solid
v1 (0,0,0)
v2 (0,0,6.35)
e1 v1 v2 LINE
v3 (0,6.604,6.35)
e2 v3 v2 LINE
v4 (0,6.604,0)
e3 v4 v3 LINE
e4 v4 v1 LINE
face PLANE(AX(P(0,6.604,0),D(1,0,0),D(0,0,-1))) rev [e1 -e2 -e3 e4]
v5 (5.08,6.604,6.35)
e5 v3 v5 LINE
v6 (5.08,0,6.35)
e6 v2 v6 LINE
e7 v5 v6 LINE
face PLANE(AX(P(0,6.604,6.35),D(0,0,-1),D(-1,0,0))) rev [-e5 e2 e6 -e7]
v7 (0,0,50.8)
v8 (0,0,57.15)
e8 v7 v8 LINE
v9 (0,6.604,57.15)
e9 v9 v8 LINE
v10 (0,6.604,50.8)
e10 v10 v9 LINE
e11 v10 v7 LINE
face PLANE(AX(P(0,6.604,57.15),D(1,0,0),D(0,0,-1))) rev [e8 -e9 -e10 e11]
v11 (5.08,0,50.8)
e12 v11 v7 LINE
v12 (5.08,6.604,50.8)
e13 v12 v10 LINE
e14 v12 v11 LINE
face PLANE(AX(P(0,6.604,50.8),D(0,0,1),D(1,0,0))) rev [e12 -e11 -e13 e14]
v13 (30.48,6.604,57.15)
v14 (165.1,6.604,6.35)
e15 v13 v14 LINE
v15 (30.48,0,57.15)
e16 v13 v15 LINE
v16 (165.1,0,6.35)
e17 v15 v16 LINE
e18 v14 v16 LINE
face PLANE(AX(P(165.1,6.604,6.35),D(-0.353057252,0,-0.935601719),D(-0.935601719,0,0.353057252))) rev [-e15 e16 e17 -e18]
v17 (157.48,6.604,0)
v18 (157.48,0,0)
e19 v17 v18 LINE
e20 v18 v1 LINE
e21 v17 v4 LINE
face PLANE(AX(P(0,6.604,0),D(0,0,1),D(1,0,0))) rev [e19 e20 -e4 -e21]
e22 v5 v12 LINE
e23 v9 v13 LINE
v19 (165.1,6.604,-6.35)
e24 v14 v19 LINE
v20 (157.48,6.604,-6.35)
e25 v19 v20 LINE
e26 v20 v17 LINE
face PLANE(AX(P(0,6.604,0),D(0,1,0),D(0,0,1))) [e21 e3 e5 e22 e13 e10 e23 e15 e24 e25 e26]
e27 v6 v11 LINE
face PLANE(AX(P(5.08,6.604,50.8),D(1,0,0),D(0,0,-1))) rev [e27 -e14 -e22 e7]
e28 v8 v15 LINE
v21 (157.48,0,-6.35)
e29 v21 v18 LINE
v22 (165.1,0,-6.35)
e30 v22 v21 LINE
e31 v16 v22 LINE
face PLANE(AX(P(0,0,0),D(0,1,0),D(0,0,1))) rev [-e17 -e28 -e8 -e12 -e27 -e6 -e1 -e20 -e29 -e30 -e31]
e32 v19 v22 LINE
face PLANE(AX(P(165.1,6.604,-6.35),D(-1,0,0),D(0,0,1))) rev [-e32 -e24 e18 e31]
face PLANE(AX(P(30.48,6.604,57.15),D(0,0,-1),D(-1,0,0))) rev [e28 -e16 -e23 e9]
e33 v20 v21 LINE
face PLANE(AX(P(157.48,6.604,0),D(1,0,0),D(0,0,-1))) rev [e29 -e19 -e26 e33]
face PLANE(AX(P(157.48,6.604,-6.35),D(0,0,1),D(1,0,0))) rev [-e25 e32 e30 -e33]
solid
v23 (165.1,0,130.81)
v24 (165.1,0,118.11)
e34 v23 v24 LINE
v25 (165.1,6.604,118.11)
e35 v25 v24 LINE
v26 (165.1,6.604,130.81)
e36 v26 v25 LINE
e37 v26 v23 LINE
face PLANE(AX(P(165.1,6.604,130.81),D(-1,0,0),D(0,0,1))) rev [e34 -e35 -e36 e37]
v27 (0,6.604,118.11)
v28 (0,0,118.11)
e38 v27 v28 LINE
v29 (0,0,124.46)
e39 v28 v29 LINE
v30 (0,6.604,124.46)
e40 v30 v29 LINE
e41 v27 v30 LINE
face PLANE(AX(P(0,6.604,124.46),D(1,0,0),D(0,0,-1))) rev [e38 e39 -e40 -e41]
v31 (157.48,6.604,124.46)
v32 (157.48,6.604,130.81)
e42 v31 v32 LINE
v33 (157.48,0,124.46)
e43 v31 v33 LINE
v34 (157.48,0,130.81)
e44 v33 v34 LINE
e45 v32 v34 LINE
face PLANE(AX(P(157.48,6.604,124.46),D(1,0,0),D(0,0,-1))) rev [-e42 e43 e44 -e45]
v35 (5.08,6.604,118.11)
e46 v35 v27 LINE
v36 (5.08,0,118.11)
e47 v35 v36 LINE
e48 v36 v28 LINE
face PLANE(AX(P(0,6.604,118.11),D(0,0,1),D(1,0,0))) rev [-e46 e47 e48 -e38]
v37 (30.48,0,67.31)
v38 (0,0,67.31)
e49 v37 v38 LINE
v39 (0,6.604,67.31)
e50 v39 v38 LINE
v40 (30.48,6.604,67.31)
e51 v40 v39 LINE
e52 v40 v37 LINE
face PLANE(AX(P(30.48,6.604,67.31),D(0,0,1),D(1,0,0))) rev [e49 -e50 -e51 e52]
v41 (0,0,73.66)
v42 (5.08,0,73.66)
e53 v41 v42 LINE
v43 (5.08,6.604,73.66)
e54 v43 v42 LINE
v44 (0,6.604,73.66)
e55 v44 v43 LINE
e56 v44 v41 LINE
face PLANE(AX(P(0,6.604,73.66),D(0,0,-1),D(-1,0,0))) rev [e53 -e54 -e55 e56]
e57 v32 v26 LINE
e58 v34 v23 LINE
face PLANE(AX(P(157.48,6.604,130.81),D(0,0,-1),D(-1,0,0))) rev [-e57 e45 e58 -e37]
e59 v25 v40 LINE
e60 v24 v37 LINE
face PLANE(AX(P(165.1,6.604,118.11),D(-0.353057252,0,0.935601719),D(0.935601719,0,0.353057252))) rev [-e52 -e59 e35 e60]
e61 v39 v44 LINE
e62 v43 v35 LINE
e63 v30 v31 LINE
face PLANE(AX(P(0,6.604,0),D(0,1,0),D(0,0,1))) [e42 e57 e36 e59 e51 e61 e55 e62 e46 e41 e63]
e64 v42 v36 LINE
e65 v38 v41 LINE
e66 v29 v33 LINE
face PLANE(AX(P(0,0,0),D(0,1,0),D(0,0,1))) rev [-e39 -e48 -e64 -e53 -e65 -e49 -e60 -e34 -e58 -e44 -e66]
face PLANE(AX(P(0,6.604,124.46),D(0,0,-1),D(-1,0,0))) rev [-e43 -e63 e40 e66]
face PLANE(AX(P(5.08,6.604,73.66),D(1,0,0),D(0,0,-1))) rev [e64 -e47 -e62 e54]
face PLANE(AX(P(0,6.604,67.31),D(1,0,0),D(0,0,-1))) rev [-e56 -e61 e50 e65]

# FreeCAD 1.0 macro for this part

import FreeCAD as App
import Part
import Sketcher
from FreeCAD import Vector
Q = App.Units.Quantity


def add_polygon(sketch, points):
    """Adds a closed chain of lines whose ends are joined by coincident constraints."""
    first, n = sketch.GeometryCount, len(points)
    for a, b in zip(points, points[1:] + points[:1]):
        sketch.addGeometry(Part.LineSegment(App.Vector(*a, 0), App.Vector(*b, 0)), False)
    for i in range(n):
        sketch.addConstraint(Sketcher.Constraint("Coincident", first + i, 2, first + (i + 1) % n, 1))

doc = App.newDocument("Part")
params = doc.addObject("Spreadsheet::Sheet", "Params")
for row, (alias, value) in enumerate([
    ("sketch1_width", "6.2 in"),
    ("sketch1_width2", "0.2 in"),
    ("sketch1_width3", "1.2 in"),
    ("sketch1_width4", "0.3 in"),
    ("sketch1_height", "0.5 in"),
    ("pad1_length", "0.26 in"),
    ("sketch2_width", "0.2 in"),
    ("sketch2_width2", "6.2 in"),
    ("sketch2_width3", "0.3 in"),
    ("sketch2_width4", "1.2 in"),
    ("sketch2_height", "0.5 in"),
    ("pad2_length", "0.26 in"),
], start=1):
    params.set(f"A{row}", alias)
    params.set(f"B{row}", "=" + value)
    params.setAlias(f"B{row}", alias)

body = doc.addObject("PartDesign::Body", "Body")

sketch1 = doc.addObject("Sketcher::SketchObject", "Sketch")
body.addObject(sketch1)
sketch1.AttachmentSupport = (doc.XZ_Plane, [""])
sketch1.MapMode = "FlatFace"
add_polygon(sketch1, [(157, -6), (157, 0), (0, 0), (0, 6), (5, 6), (5, 51), (0, 51), (0, 57), (30, 57), (165, 6), (165, -6)])
sketch1.addConstraint(Sketcher.Constraint("Vertical", 0))
sketch1.addConstraint(Sketcher.Constraint("Horizontal", 1))
sketch1.addConstraint(Sketcher.Constraint("Vertical", 2))
sketch1.addConstraint(Sketcher.Constraint("Horizontal", 3))
sketch1.addConstraint(Sketcher.Constraint("Vertical", 4))
sketch1.addConstraint(Sketcher.Constraint("Horizontal", 5))
sketch1.addConstraint(Sketcher.Constraint("Vertical", 6))
sketch1.addConstraint(Sketcher.Constraint("Horizontal", 7))
sketch1.addConstraint(Sketcher.Constraint("Vertical", 9))
sketch1.addConstraint(Sketcher.Constraint("Horizontal", 10))
sketch1.addConstraint(Sketcher.Constraint("Coincident", 1, 2, -1, 1))
sketch1.addConstraint(Sketcher.Constraint("PointOnObject", 5, 2, -2))
sketch1.addConstraint(Sketcher.Constraint("Horizontal", 3, 2, 8, 2))
sketch1.addConstraint(Sketcher.Constraint("Equal", 0, 2))
sketch1.addConstraint(Sketcher.Constraint("Equal", 2, 6))
sketch1.addConstraint(Sketcher.Constraint("DistanceX", 1, 2, 1, 1, Q("6.2 in")))
sketch1.addConstraint(Sketcher.Constraint("DistanceX", 3, 1, 3, 2, Q("0.2 in")))
sketch1.addConstraint(Sketcher.Constraint("DistanceX", 7, 1, 7, 2, Q("1.2 in")))
sketch1.addConstraint(Sketcher.Constraint("DistanceX", 10, 2, 10, 1, Q("0.3 in")))
sketch1.addConstraint(Sketcher.Constraint("DistanceY", 9, 2, 9, 1, Q("0.5 in")))
sketch1.addConstraint(Sketcher.Constraint("DistanceY", -1, 1, 4, 2, Q("2 in")))
sketch1.setExpression("Constraints[26]", "Params.sketch1_width")
sketch1.setExpression("Constraints[27]", "Params.sketch1_width2")
sketch1.setExpression("Constraints[28]", "Params.sketch1_width3")
sketch1.setExpression("Constraints[29]", "Params.sketch1_width4")
sketch1.setExpression("Constraints[30]", "Params.sketch1_height")
pad1 = doc.addObject("PartDesign::Pad", "Pad")
body.addObject(pad1)
pad1.Profile = sketch1
pad1.setExpression("Length", "Params.pad1_length")
pad1.Reversed = True
body2 = doc.addObject("PartDesign::Body", "Body001")

sketch2 = doc.addObject("Sketcher::SketchObject", "Sketch001")
body2.addObject(sketch2)
sketch2.AttachmentSupport = (doc.getObject("XZ_Plane001"), [""])
sketch2.MapMode = "FlatFace"
add_polygon(sketch2, [(0, 74), (5, 74), (5, 118), (0, 118), (0, 124), (157, 124), (157, 131), (165, 131), (165, 118), (30, 67), (0, 67)])
sketch2.addConstraint(Sketcher.Constraint("Horizontal", 0))
sketch2.addConstraint(Sketcher.Constraint("Vertical", 1))
sketch2.addConstraint(Sketcher.Constraint("Horizontal", 2))
sketch2.addConstraint(Sketcher.Constraint("Vertical", 3))
sketch2.addConstraint(Sketcher.Constraint("Horizontal", 4))
sketch2.addConstraint(Sketcher.Constraint("Vertical", 5))
sketch2.addConstraint(Sketcher.Constraint("Horizontal", 6))
sketch2.addConstraint(Sketcher.Constraint("Vertical", 7))
sketch2.addConstraint(Sketcher.Constraint("Horizontal", 9))
sketch2.addConstraint(Sketcher.Constraint("Vertical", 10))
sketch2.addConstraint(Sketcher.Constraint("PointOnObject", 2, 2, -2))
sketch2.addConstraint(Sketcher.Constraint("PointOnObject", 9, 2, -2))
sketch2.addConstraint(Sketcher.Constraint("Horizontal", 2, 2, 7, 2))
sketch2.addConstraint(Sketcher.Constraint("Equal", 3, 5))
sketch2.addConstraint(Sketcher.Constraint("Equal", 5, 10))
sketch2.addConstraint(Sketcher.Constraint("DistanceX", 0, 1, 0, 2, Q("0.2 in")))
sketch2.addConstraint(Sketcher.Constraint("DistanceX", 4, 1, 4, 2, Q("6.2 in")))
sketch2.addConstraint(Sketcher.Constraint("DistanceX", 6, 1, 6, 2, Q("0.3 in")))
sketch2.addConstraint(Sketcher.Constraint("DistanceX", 9, 2, 9, 1, Q("1.2 in")))
sketch2.addConstraint(Sketcher.Constraint("DistanceY", 7, 2, 7, 1, Q("0.5 in")))
sketch2.addConstraint(Sketcher.Constraint("DistanceY", 0, 2, 3, 2, Q("2 in")))
sketch2.addConstraint(Sketcher.Constraint("DistanceY", -1, 1, 0, 2, Q("2.9 in")))
sketch2.setExpression("Constraints[26]", "Params.sketch2_width")
sketch2.setExpression("Constraints[27]", "Params.sketch2_width2")
sketch2.setExpression("Constraints[28]", "Params.sketch2_width3")
sketch2.setExpression("Constraints[29]", "Params.sketch2_width4")
sketch2.setExpression("Constraints[30]", "Params.sketch2_height")
pad2 = doc.addObject("PartDesign::Pad", "Pad001")
body2.addObject(pad2)
pad2.Profile = sketch2
pad2.setExpression("Length", "Params.pad2_length")
pad2.Reversed = True

doc.recompute()
